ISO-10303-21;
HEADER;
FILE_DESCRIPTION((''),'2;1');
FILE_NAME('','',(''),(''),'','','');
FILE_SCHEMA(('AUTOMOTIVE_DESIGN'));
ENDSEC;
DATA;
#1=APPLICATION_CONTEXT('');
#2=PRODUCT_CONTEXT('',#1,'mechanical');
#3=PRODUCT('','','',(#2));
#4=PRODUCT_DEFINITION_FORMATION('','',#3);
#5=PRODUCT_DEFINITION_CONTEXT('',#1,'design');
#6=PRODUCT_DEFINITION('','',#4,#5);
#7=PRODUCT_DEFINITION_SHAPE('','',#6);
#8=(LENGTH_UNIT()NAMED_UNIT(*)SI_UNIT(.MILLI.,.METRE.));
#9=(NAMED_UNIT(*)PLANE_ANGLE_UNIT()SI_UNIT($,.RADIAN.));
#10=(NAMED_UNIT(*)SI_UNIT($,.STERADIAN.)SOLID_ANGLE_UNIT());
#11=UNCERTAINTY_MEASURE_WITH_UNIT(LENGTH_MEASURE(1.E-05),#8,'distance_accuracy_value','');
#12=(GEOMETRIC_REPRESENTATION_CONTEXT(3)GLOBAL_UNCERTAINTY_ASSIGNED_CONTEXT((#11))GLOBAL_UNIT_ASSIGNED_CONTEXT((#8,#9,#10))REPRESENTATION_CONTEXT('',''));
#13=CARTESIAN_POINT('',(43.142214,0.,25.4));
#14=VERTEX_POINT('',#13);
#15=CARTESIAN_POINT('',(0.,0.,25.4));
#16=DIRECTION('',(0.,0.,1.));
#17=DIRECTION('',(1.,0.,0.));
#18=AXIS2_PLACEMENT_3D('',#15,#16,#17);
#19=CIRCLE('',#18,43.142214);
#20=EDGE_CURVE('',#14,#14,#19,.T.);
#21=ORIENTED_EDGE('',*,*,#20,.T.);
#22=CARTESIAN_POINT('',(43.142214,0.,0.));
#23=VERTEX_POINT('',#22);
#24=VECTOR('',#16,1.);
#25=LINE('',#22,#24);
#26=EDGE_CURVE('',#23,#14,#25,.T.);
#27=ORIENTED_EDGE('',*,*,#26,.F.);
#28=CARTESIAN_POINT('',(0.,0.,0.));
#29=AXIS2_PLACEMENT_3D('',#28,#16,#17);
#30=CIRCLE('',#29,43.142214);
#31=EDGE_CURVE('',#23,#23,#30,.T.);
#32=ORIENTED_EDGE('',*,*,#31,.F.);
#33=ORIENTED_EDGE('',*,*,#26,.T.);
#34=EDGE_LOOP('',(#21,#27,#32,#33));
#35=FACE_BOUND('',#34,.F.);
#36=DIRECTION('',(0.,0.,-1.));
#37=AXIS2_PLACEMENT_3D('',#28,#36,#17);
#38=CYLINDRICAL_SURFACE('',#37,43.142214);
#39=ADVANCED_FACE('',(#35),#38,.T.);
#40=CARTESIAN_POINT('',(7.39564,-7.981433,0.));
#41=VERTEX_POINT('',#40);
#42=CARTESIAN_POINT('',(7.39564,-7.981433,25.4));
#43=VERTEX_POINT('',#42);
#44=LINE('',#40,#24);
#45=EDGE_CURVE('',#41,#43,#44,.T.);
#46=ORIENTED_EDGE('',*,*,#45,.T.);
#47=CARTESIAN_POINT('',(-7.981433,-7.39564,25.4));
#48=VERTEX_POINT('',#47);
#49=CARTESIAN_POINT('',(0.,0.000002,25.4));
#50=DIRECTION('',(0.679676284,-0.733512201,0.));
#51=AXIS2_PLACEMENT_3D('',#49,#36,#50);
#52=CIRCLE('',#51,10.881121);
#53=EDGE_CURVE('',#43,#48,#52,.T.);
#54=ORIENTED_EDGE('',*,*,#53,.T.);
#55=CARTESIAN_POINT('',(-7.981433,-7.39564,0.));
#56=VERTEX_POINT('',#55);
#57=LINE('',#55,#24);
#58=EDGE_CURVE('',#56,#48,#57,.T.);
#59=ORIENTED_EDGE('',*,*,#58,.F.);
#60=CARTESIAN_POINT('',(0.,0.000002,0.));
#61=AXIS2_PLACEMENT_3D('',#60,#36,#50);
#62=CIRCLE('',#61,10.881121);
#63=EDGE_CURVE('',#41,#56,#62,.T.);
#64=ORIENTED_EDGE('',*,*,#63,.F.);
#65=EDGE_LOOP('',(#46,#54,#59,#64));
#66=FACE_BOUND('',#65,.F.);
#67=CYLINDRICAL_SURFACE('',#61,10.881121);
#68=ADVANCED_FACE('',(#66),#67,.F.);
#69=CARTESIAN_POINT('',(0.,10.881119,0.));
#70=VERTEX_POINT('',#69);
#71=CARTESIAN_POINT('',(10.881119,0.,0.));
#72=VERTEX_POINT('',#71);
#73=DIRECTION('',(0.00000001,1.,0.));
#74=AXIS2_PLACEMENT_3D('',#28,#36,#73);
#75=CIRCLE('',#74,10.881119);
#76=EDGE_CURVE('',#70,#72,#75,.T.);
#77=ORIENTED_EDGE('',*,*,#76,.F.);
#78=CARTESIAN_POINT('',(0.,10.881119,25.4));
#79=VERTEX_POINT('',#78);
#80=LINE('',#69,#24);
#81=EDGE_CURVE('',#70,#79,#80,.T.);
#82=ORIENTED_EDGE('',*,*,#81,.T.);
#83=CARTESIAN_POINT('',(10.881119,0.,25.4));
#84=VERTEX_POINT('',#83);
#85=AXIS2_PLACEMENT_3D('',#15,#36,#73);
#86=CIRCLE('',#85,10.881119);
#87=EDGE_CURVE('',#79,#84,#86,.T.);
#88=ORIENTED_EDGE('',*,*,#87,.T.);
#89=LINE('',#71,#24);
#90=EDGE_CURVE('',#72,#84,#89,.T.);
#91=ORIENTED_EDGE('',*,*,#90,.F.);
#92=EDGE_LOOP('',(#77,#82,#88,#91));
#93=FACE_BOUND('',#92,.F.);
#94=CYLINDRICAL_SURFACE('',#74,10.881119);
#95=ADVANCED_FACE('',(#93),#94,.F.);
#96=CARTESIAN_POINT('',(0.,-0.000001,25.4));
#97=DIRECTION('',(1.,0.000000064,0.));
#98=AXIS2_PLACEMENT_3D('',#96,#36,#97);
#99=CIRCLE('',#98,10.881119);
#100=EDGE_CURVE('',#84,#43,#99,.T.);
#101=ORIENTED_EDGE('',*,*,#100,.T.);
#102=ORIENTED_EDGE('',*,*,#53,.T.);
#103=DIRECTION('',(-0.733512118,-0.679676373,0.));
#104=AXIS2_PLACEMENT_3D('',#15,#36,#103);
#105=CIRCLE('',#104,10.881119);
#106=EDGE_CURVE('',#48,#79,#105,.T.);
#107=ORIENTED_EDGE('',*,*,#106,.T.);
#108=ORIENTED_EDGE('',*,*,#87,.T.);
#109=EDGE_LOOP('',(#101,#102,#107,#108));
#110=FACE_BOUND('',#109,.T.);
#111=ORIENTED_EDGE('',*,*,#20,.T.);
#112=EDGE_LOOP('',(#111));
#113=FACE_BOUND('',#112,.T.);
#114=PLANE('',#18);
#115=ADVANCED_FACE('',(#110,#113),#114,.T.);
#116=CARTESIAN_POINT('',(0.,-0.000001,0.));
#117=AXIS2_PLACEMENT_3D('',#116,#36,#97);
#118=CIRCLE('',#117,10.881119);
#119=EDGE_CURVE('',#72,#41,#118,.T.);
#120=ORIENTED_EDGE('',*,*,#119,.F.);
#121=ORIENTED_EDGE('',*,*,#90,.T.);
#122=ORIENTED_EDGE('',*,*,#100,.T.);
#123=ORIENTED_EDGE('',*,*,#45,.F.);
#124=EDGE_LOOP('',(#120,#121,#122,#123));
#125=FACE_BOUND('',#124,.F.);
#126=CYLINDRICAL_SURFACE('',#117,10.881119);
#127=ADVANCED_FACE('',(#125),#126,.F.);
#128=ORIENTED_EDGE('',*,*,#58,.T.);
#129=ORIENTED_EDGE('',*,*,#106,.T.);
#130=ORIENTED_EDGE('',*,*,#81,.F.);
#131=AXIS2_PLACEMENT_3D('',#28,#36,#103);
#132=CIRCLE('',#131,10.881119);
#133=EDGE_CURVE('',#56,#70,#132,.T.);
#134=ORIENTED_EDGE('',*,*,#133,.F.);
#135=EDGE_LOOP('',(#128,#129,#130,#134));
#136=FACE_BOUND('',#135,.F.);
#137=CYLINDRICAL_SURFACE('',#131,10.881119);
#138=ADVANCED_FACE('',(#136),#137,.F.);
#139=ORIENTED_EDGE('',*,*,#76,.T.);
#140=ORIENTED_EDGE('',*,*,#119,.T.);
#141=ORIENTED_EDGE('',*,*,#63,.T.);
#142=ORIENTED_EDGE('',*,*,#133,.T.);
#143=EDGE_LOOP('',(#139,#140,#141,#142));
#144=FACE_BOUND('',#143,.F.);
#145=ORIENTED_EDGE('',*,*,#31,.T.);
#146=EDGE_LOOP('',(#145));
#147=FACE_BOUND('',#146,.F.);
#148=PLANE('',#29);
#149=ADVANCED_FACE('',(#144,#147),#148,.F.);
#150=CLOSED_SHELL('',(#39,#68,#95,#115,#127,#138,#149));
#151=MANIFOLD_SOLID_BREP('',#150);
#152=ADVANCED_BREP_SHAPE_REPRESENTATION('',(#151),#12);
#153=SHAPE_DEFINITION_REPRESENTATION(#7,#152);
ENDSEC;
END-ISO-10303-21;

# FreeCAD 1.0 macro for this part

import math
import FreeCAD as App
import Part
import Sketcher

V = App.Vector
Q = App.Units.Quantity

doc = App.newDocument("Part")
body = doc.addObject("PartDesign::Body", "Body")

# Sketch on XY plane
sketch1 = body.newObject("Sketcher::SketchObject", "Sketch")
sketch1.AttachmentSupport = (doc.getObject("XY_Plane"), [""])
sketch1.MapMode = "FlatFace"
sketch1.addGeometry([
    Part.Circle(V(0, 0, 0), V(0, 0, 1), 43),  # 0
    Part.ArcOfCircle(Part.Circle(V(0, 0, 0), V(0, 0, 1), 11), math.radians(90), math.radians(223)),  # 1
    Part.ArcOfCircle(Part.Circle(V(0, 0, 0), V(0, 0, 1), 11), math.radians(0), math.radians(90)),  # 2
    Part.ArcOfCircle(Part.Circle(V(0, 0, 0), V(0, 0, 1), 11), math.radians(-47), math.radians(0)),  # 3
    Part.ArcOfCircle(Part.Circle(V(0, 0, 0), V(0, 0, 1), 11), math.radians(-137), math.radians(-47)),  # 4
], False)
sketch1.addConstraint([
    Sketcher.Constraint("Tangent", 1, 1, 2, 2),
    Sketcher.Constraint("Tangent", 2, 1, 3, 2),
    Sketcher.Constraint("Tangent", 3, 1, 4, 2),
    Sketcher.Constraint("Tangent", 4, 1, 1, 2),
    Sketcher.Constraint("Coincident", 0, 3, -1, 1),
    Sketcher.Constraint("Coincident", 1, 3, -1, 1),
    Sketcher.Constraint("Equal", 1, 2),
    Sketcher.Constraint("PointOnObject", 1, 1, -2),
    Sketcher.Constraint("PointOnObject", 2, 1, -1),
    Sketcher.Constraint("Diameter", 0, Q("86.284428 mm")),
    Sketcher.Constraint("Radius", 1, Q("10.881119 mm")),
    Sketcher.Constraint("DistanceX", -1, 1, 3, 1, Q("7.39564 mm")),
    Sketcher.Constraint("DistanceY", 4, 1, -1, 1, Q("7.39564 mm")),
])
pad1 = body.newObject("PartDesign::Pad", "Pad")
pad1.Profile = sketch1
pad1.Length = Q("1 in")

doc.recompute()
